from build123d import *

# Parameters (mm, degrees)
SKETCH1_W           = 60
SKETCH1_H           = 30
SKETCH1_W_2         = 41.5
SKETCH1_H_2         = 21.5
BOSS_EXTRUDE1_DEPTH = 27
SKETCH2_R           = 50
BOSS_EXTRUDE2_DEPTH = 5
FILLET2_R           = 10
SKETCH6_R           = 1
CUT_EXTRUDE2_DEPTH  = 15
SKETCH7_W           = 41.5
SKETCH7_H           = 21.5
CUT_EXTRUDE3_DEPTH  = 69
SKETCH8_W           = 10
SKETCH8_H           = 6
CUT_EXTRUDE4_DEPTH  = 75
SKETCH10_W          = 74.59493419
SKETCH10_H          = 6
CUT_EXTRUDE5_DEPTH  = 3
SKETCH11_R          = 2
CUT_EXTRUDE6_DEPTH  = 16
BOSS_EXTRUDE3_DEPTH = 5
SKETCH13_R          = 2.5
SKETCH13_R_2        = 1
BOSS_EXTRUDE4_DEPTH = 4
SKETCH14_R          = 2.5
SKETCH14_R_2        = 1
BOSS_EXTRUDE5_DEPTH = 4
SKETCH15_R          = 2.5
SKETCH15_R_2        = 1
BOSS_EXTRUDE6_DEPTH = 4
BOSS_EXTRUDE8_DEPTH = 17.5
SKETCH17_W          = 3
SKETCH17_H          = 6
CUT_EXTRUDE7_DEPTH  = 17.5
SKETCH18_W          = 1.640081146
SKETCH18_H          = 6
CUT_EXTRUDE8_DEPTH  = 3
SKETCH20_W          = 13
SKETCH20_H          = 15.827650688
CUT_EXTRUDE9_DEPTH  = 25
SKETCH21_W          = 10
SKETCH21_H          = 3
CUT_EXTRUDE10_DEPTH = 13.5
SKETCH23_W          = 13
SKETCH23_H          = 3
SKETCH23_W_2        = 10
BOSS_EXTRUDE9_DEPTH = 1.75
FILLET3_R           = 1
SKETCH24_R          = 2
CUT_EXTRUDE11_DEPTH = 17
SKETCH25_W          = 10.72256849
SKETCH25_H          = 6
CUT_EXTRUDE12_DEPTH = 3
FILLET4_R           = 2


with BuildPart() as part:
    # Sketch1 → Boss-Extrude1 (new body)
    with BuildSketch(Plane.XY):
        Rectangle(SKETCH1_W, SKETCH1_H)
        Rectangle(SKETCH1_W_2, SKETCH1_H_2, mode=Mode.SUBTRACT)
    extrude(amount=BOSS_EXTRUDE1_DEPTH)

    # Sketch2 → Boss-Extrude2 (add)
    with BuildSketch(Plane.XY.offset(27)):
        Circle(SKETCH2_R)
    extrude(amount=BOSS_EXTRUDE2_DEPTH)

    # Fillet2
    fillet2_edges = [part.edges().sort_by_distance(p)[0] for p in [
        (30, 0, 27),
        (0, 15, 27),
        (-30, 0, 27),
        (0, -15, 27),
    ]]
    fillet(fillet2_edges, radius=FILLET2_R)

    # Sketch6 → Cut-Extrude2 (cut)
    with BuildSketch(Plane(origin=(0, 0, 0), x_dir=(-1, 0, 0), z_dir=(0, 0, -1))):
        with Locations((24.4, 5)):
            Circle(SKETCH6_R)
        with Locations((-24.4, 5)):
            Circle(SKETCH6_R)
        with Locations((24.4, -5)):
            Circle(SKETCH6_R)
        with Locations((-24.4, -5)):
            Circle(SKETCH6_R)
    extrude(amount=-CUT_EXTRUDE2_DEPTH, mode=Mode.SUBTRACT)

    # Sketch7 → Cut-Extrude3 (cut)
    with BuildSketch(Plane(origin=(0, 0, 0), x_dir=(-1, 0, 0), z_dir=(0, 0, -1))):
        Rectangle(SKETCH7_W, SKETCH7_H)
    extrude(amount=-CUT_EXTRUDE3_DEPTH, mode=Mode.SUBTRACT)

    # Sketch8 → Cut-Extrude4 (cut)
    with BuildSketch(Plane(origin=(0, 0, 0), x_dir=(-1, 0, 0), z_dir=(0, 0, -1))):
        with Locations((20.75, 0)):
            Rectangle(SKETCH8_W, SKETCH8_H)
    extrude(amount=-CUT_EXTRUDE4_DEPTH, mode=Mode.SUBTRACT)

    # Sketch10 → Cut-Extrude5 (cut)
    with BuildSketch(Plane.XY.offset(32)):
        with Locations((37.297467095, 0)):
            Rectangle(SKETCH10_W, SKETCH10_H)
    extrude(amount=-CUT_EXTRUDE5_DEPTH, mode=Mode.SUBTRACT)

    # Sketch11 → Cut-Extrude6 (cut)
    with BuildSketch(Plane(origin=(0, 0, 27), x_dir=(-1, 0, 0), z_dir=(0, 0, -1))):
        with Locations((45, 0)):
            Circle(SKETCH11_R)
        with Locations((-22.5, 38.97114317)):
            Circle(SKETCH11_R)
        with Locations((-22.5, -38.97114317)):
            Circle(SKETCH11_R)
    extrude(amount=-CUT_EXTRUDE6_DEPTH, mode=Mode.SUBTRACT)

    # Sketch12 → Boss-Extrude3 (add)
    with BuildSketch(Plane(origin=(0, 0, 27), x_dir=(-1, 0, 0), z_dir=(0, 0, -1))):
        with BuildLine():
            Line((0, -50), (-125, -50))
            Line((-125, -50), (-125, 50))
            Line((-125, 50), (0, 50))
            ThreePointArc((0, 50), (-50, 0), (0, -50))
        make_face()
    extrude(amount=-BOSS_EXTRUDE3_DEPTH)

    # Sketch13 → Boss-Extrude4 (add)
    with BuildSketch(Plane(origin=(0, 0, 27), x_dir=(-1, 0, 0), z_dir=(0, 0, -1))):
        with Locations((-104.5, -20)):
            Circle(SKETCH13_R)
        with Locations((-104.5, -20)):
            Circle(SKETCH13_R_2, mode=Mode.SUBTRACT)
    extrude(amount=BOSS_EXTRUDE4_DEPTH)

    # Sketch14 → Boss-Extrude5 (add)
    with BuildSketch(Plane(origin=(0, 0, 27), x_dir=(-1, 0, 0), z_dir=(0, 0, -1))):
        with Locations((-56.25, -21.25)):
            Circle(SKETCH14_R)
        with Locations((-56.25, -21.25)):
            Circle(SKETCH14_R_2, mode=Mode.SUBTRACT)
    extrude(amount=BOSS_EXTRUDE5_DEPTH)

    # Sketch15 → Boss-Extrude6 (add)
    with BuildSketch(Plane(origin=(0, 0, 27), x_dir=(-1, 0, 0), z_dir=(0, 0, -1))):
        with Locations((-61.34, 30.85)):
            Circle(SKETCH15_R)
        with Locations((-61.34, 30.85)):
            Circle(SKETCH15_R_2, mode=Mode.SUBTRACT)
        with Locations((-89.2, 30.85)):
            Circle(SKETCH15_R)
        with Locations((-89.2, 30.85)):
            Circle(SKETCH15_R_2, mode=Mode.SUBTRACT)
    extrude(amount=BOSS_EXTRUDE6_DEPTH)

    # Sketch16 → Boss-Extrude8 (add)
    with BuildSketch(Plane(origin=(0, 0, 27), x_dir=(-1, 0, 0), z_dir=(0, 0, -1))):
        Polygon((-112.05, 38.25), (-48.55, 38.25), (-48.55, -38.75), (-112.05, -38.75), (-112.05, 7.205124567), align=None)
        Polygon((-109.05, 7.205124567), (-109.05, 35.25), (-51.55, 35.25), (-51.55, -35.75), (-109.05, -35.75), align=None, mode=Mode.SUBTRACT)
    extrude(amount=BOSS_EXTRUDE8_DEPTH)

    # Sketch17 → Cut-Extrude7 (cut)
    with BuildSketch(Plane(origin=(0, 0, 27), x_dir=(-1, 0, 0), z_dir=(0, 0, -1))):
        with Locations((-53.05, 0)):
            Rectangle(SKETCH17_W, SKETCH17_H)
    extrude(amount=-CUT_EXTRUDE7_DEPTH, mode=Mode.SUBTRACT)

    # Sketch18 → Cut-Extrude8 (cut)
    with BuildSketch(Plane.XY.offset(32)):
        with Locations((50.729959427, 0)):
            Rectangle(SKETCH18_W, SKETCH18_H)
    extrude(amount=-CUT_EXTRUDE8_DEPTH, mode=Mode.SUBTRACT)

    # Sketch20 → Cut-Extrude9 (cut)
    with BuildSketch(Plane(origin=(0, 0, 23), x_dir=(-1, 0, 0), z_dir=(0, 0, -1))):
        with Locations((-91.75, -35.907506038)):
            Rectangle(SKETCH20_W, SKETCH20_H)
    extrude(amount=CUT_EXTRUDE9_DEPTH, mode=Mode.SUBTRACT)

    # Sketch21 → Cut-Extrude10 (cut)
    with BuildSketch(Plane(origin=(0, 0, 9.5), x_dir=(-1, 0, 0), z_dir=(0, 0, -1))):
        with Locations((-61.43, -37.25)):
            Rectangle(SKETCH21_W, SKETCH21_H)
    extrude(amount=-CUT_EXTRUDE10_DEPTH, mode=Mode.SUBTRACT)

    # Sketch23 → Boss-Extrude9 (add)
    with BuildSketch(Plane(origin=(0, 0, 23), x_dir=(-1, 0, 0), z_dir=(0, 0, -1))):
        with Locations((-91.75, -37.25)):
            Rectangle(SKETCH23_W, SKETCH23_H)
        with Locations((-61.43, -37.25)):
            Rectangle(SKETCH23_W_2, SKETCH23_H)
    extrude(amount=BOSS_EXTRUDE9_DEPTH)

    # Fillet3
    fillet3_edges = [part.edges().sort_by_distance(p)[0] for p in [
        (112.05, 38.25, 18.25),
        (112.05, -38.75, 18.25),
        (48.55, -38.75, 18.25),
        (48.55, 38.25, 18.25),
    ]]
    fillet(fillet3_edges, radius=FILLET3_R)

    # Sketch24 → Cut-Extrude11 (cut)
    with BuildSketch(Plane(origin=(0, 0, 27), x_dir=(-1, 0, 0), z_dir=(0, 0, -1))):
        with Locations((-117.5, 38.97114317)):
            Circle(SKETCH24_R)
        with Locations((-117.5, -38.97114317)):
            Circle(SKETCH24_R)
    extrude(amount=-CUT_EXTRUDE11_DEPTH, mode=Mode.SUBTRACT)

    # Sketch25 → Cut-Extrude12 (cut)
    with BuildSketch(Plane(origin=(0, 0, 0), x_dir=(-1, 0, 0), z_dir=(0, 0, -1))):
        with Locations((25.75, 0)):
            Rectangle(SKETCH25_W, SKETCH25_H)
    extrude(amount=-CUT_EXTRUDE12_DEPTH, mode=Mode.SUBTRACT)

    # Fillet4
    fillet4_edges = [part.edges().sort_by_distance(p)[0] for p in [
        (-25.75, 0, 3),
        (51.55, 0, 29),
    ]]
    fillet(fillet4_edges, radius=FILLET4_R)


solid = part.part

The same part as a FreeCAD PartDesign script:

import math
import FreeCAD as App
import Part
import Sketcher

V = App.Vector


def edges_at(feature, points):
    """Names of the edges that pass closest to the given points."""
    edges = feature.Shape.Edges
    near = lambda p: min(range(len(edges)), key=lambda i: edges[i].distToShape(Part.Vertex(*p))[0])
    return sorted({f"Edge{near(p) + 1}" for p in points})

doc = App.newDocument("Part")
params = doc.addObject("Spreadsheet::Sheet", "Params")
for row, (alias, value) in enumerate([
    ("sketch1_width", "60 mm"),
    ("sketch1_height", "30 mm"),
    ("sketch1_width2", "41.5 mm"),
    ("sketch1_height2", "21.5 mm"),
    ("pad1_length", "27 mm"),
    ("sketch2_diameter", "100 mm"),
    ("pad2_length", "5 mm"),
    ("fillet_radius", "10 mm"),
    ("sketch3_diameter", "2 mm"),
    ("pocket1_length", "15 mm"),
    ("sketch4_width", "41.5 mm"),
    ("sketch4_height", "21.5 mm"),
    ("pocket2_length", "69 mm"),
    ("sketch5_width", "10 mm"),
    ("sketch5_height", "6 mm"),
    ("pocket3_length", "75 mm"),
    ("sketch6_height", "6 mm"),
    ("pocket4_length", "3 mm"),
    ("sketch7_diameter", "4 mm"),
    ("pocket5_length", "16 mm"),
    ("sketch8_radius", "50 mm"),
    ("sketch8_width", "125 mm"),
    ("pad3_length", "5 mm"),
    ("sketch9_diameter", "5 mm"),
    ("sketch9_diameter2", "2 mm"),
    ("pad4_length", "4 mm"),
    ("sketch10_diameter", "5 mm"),
    ("sketch10_diameter2", "2 mm"),
    ("pad5_length", "4 mm"),
    ("sketch11_diameter", "5 mm"),
    ("sketch11_diameter2", "2 mm"),
    ("pad6_length", "4 mm"),
    ("sketch12_height", "77 mm"),
    ("sketch12_height2", "71 mm"),
    ("sketch12_width", "63.5 mm"),
    ("sketch12_width2", "57.5 mm"),
    ("pad7_length", "17.5 mm"),
    ("sketch13_width", "3 mm"),
    ("sketch13_height", "6 mm"),
    ("pocket6_length", "17.5 mm"),
    ("sketch14_height", "6 mm"),
    ("pocket7_length", "3 mm"),
    ("sketch15_width", "13 mm"),
    ("pocket8_length", "25 mm"),
    ("sketch16_width", "10 mm"),
    ("sketch16_height", "3 mm"),
    ("pocket9_length", "13.5 mm"),
    ("sketch17_width", "13 mm"),
    ("sketch17_width2", "10 mm"),
    ("sketch17_height", "3 mm"),
    ("pad8_length", "1.75 mm"),
    ("fillet2_radius", "1 mm"),
    ("sketch18_diameter", "4 mm"),
    ("pocket10_length", "17 mm"),
    ("sketch19_height", "6 mm"),
    ("pocket11_length", "3 mm"),
    ("fillet3_radius", "2 mm"),
], start=1):
    params.set(f"A{row}", alias)
    params.set(f"B{row}", "=" + value)
    params.setAlias(f"B{row}", alias)

body = doc.addObject("PartDesign::Body", "Body")

sketch1 = body.newObject("Sketcher::SketchObject", "Sketch")
sketch1.AttachmentSupport = (doc.getObject("XY_Plane"), [""])
sketch1.MapMode = "FlatFace"
sketch1.addGeometry(Part.LineSegment(V(-30, 15, 0), V(-30, -15, 0)), False)
sketch1.addGeometry(Part.LineSegment(V(-30, -15, 0), V(30, -15, 0)), False)
sketch1.addGeometry(Part.LineSegment(V(30, -15, 0), V(30, 15, 0)), False)
sketch1.addGeometry(Part.LineSegment(V(30, 15, 0), V(-30, 15, 0)), False)
sketch1.addGeometry(Part.LineSegment(V(21, -11, 0), V(-21, -11, 0)), False)
sketch1.addGeometry(Part.LineSegment(V(-21, -11, 0), V(-21, 11, 0)), False)
sketch1.addGeometry(Part.LineSegment(V(-21, 11, 0), V(21, 11, 0)), False)
sketch1.addGeometry(Part.LineSegment(V(21, 11, 0), V(21, -11, 0)), False)
sketch1.addConstraint(Sketcher.Constraint("Coincident", 0, 2, 1, 1))
sketch1.addConstraint(Sketcher.Constraint("Coincident", 1, 2, 2, 1))
sketch1.addConstraint(Sketcher.Constraint("Coincident", 2, 2, 3, 1))
sketch1.addConstraint(Sketcher.Constraint("Coincident", 3, 2, 0, 1))
sketch1.addConstraint(Sketcher.Constraint("Coincident", 4, 2, 5, 1))
sketch1.addConstraint(Sketcher.Constraint("Coincident", 5, 2, 6, 1))
sketch1.addConstraint(Sketcher.Constraint("Coincident", 6, 2, 7, 1))
sketch1.addConstraint(Sketcher.Constraint("Coincident", 7, 2, 4, 1))
sketch1.addConstraint(Sketcher.Constraint("Vertical", 0))
sketch1.addConstraint(Sketcher.Constraint("Horizontal", 1))
sketch1.addConstraint(Sketcher.Constraint("Vertical", 2))
sketch1.addConstraint(Sketcher.Constraint("Horizontal", 3))
sketch1.addConstraint(Sketcher.Constraint("Horizontal", 4))
sketch1.addConstraint(Sketcher.Constraint("Vertical", 5))
sketch1.addConstraint(Sketcher.Constraint("Horizontal", 6))
sketch1.addConstraint(Sketcher.Constraint("Vertical", 7))
sketch1.addConstraint(Sketcher.Constraint("Symmetric", 0, 2, 2, 2, -1, 1))
sketch1.addConstraint(Sketcher.Constraint("Symmetric", 4, 2, 6, 2, -1, 1))
sketch1.addConstraint(Sketcher.Constraint("DistanceX", 1, 1, 1, 2, 60.0))
sketch1.addConstraint(Sketcher.Constraint("DistanceY", 0, 2, 0, 1, 30.0))
sketch1.addConstraint(Sketcher.Constraint("DistanceX", 4, 2, 4, 1, 41.5))
sketch1.addConstraint(Sketcher.Constraint("DistanceY", 5, 1, 5, 2, 21.5))
sketch1.setExpression("Constraints[18]", "Params.sketch1_width")
sketch1.setExpression("Constraints[19]", "Params.sketch1_height")
sketch1.setExpression("Constraints[20]", "Params.sketch1_width2")
sketch1.setExpression("Constraints[21]", "Params.sketch1_height2")
pad1 = body.newObject("PartDesign::Pad", "Pad")
pad1.Profile = sketch1
pad1.setExpression("Length", "Params.pad1_length")

sketch2 = body.newObject("Sketcher::SketchObject", "Sketch001")
sketch2.AttachmentSupport = (doc.getObject("XY_Plane"), [""])
sketch2.MapMode = "FlatFace"
sketch2.AttachmentOffset = App.Placement(V(0, 0, 27), App.Rotation())
sketch2.addGeometry(Part.Circle(V(0, 0, 0), V(0, 0, 1), 50), False)
sketch2.addConstraint(Sketcher.Constraint("Coincident", 0, 3, -1, 1))
sketch2.addConstraint(Sketcher.Constraint("Diameter", 0, 100.0))
sketch2.setExpression("Constraints[1]", "Params.sketch2_diameter")
pad2 = body.newObject("PartDesign::Pad", "Pad001")
pad2.Profile = sketch2
pad2.setExpression("Length", "Params.pad2_length")
doc.recompute()

fillet = body.newObject("PartDesign::Fillet", "Fillet")
fillet.Base = (pad2, edges_at(pad2, [
    (30, 0, 27),
    (0, 15, 27),
    (-30, 0, 27),
    (0, -15, 27),
]))
fillet.setExpression("Radius", "Params.fillet_radius")

sketch3 = body.newObject("Sketcher::SketchObject", "Sketch002")
sketch3.AttachmentSupport = (doc.getObject("XY_Plane"), [""])
sketch3.MapMode = "FlatFace"
sketch3.addGeometry(Part.Circle(V(-24.4, 5, 0), V(0, 0, 1), 1), False)
sketch3.addGeometry(Part.Circle(V(24.4, 5, 0), V(0, 0, 1), 1), False)
sketch3.addGeometry(Part.Circle(V(-24.4, -5, 0), V(0, 0, 1), 1), False)
sketch3.addGeometry(Part.Circle(V(24.4, -5, 0), V(0, 0, 1), 1), False)
sketch3.addConstraint(Sketcher.Constraint("Equal", 0, 1))
sketch3.addConstraint(Sketcher.Constraint("Equal", 1, 2))
sketch3.addConstraint(Sketcher.Constraint("Equal", 2, 3))
sketch3.addConstraint(Sketcher.Constraint("Symmetric", 1, 3, 2, 3, -1, 1))
sketch3.addConstraint(Sketcher.Constraint("Symmetric", 0, 3, 3, 3, -1, 1))
sketch3.addConstraint(Sketcher.Constraint("Symmetric", 0, 3, 1, 3, -2))
sketch3.addConstraint(Sketcher.Constraint("Diameter", 0, 2.0))
sketch3.addConstraint(Sketcher.Constraint("DistanceY", -1, 1, 0, 3, 5.0))
sketch3.addConstraint(Sketcher.Constraint("DistanceX", 0, 3, -1, 1, 24.4))
sketch3.setExpression("Constraints[6]", "Params.sketch3_diameter")
pocket1 = body.newObject("PartDesign::Pocket", "Pocket")
pocket1.Profile = sketch3
pocket1.setExpression("Length", "Params.pocket1_length")
pocket1.Reversed = True

sketch4 = body.newObject("Sketcher::SketchObject", "Sketch003")
sketch4.AttachmentSupport = (doc.getObject("XY_Plane"), [""])
sketch4.MapMode = "FlatFace"
sketch4.addGeometry(Part.LineSegment(V(21, 11, 0), V(21, -11, 0)), False)
sketch4.addGeometry(Part.LineSegment(V(21, -11, 0), V(-21, -11, 0)), False)
sketch4.addGeometry(Part.LineSegment(V(-21, -11, 0), V(-21, 11, 0)), False)
sketch4.addGeometry(Part.LineSegment(V(-21, 11, 0), V(21, 11, 0)), False)
sketch4.addConstraint(Sketcher.Constraint("Coincident", 0, 2, 1, 1))
sketch4.addConstraint(Sketcher.Constraint("Coincident", 1, 2, 2, 1))
sketch4.addConstraint(Sketcher.Constraint("Coincident", 2, 2, 3, 1))
sketch4.addConstraint(Sketcher.Constraint("Coincident", 3, 2, 0, 1))
sketch4.addConstraint(Sketcher.Constraint("Vertical", 0))
sketch4.addConstraint(Sketcher.Constraint("Horizontal", 1))
sketch4.addConstraint(Sketcher.Constraint("Vertical", 2))
sketch4.addConstraint(Sketcher.Constraint("Horizontal", 3))
sketch4.addConstraint(Sketcher.Constraint("Symmetric", 0, 2, 2, 2, -1, 1))
sketch4.addConstraint(Sketcher.Constraint("DistanceX", 1, 2, 1, 1, 41.5))
sketch4.addConstraint(Sketcher.Constraint("DistanceY", 0, 2, 0, 1, 21.5))
sketch4.setExpression("Constraints[9]", "Params.sketch4_width")
sketch4.setExpression("Constraints[10]", "Params.sketch4_height")
pocket2 = body.newObject("PartDesign::Pocket", "Pocket001")
pocket2.Profile = sketch4
pocket2.setExpression("Length", "Params.pocket2_length")
pocket2.Reversed = True

sketch5 = body.newObject("Sketcher::SketchObject", "Sketch004")
sketch5.AttachmentSupport = (doc.getObject("XY_Plane"), [""])
sketch5.MapMode = "FlatFace"
sketch5.addGeometry(Part.LineSegment(V(-16, 3, 0), V(-16, -3, 0)), False)
sketch5.addGeometry(Part.LineSegment(V(-16, -3, 0), V(-26, -3, 0)), False)
sketch5.addGeometry(Part.LineSegment(V(-26, -3, 0), V(-26, 3, 0)), False)
sketch5.addGeometry(Part.LineSegment(V(-26, 3, 0), V(-16, 3, 0)), False)
sketch5.addConstraint(Sketcher.Constraint("Coincident", 0, 2, 1, 1))
sketch5.addConstraint(Sketcher.Constraint("Coincident", 1, 2, 2, 1))
sketch5.addConstraint(Sketcher.Constraint("Coincident", 2, 2, 3, 1))
sketch5.addConstraint(Sketcher.Constraint("Coincident", 3, 2, 0, 1))
sketch5.addConstraint(Sketcher.Constraint("Vertical", 0))
sketch5.addConstraint(Sketcher.Constraint("Horizontal", 1))
sketch5.addConstraint(Sketcher.Constraint("Vertical", 2))
sketch5.addConstraint(Sketcher.Constraint("Horizontal", 3))
sketch5.addConstraint(Sketcher.Constraint("DistanceX", 1, 2, 1, 1, 10.0))
sketch5.addConstraint(Sketcher.Constraint("DistanceY", 0, 2, 0, 1, 6.0))
sketch5.addConstraint(Sketcher.Constraint("DistanceY", 0, 2, -1, 1, 3.0))
sketch5.addConstraint(Sketcher.Constraint("DistanceX", 0, 2, -1, 1, 15.75))
sketch5.setExpression("Constraints[8]", "Params.sketch5_width")
sketch5.setExpression("Constraints[9]", "Params.sketch5_height")
pocket3 = body.newObject("PartDesign::Pocket", "Pocket002")
pocket3.Profile = sketch5
pocket3.setExpression("Length", "Params.pocket3_length")
pocket3.Reversed = True

sketch6 = body.newObject("Sketcher::SketchObject", "Sketch005")
sketch6.AttachmentSupport = (doc.getObject("XY_Plane"), [""])
sketch6.MapMode = "FlatFace"
sketch6.AttachmentOffset = App.Placement(V(0, 0, 32), App.Rotation())
sketch6.addGeometry(Part.LineSegment(V(0, 3, 0), V(0, -3, 0)), False)
sketch6.addGeometry(Part.LineSegment(V(0, -3, 0), V(75, -3, 0)), False)
sketch6.addGeometry(Part.LineSegment(V(75, -3, 0), V(75, 3, 0)), False)
sketch6.addGeometry(Part.LineSegment(V(75, 3, 0), V(0, 3, 0)), False)
sketch6.addConstraint(Sketcher.Constraint("Coincident", 0, 2, 1, 1))
sketch6.addConstraint(Sketcher.Constraint("Coincident", 1, 2, 2, 1))
sketch6.addConstraint(Sketcher.Constraint("Coincident", 2, 2, 3, 1))
sketch6.addConstraint(Sketcher.Constraint("Coincident", 3, 2, 0, 1))
sketch6.addConstraint(Sketcher.Constraint("Vertical", 0))
sketch6.addConstraint(Sketcher.Constraint("Horizontal", 1))
sketch6.addConstraint(Sketcher.Constraint("Vertical", 2))
sketch6.addConstraint(Sketcher.Constraint("Horizontal", 3))
sketch6.addConstraint(Sketcher.Constraint("Symmetric", 0, 2, 3, 2, -1, 1))
sketch6.addConstraint(Sketcher.Constraint("DistanceY", 0, 2, 0, 1, 6.0))
sketch6.addConstraint(Sketcher.Constraint("DistanceX", 1, 1, 1, 2, 74.594934))
sketch6.setExpression("Constraints[9]", "Params.sketch6_height")
pocket4 = body.newObject("PartDesign::Pocket", "Pocket003")
pocket4.Profile = sketch6
pocket4.setExpression("Length", "Params.pocket4_length")

sketch7 = body.newObject("Sketcher::SketchObject", "Sketch006")
sketch7.AttachmentSupport = (doc.getObject("XY_Plane"), [""])
sketch7.MapMode = "FlatFace"
sketch7.AttachmentOffset = App.Placement(V(0, 0, 27), App.Rotation())
sketch7.addGeometry(Part.Circle(V(-45, 0, 0), V(0, 0, 1), 2), False)
sketch7.addGeometry(Part.Circle(V(22.5, 39, 0), V(0, 0, 1), 2), False)
sketch7.addGeometry(Part.Circle(V(22.5, -39, 0), V(0, 0, 1), 2), False)
sketch7.addConstraint(Sketcher.Constraint("Equal", 0, 1))
sketch7.addConstraint(Sketcher.Constraint("Equal", 1, 2))
sketch7.addConstraint(Sketcher.Constraint("Symmetric", 1, 3, 2, 3, -1))
sketch7.addConstraint(Sketcher.Constraint("PointOnObject", 0, 3, -1))
sketch7.addConstraint(Sketcher.Constraint("Diameter", 0, 4.0))
sketch7.addConstraint(Sketcher.Constraint("DistanceX", 0, 3, -1, 1, 45.0))
sketch7.addConstraint(Sketcher.Constraint("DistanceX", -1, 1, 1, 3, 22.5))
sketch7.addConstraint(Sketcher.Constraint("DistanceY", -1, 1, 1, 3, 38.971143))
sketch7.setExpression("Constraints[4]", "Params.sketch7_diameter")
pocket5 = body.newObject("PartDesign::Pocket", "Pocket004")
pocket5.Profile = sketch7
pocket5.setExpression("Length", "Params.pocket5_length")
pocket5.Reversed = True

sketch8 = body.newObject("Sketcher::SketchObject", "Sketch007")
sketch8.AttachmentSupport = (doc.getObject("XY_Plane"), [""])
sketch8.MapMode = "FlatFace"
sketch8.AttachmentOffset = App.Placement(V(0, 0, 27), App.Rotation())
sketch8.addGeometry(Part.LineSegment(V(125, -50, 0), V(0, -50, 0)), False)
sketch8.addGeometry(Part.ArcOfCircle(Part.Circle(V(0, 0, 0), V(0, 0, 1), 50), math.radians(-90), math.radians(90)), False)
sketch8.addGeometry(Part.LineSegment(V(0, 50, 0), V(125, 50, 0)), False)
sketch8.addGeometry(Part.LineSegment(V(125, 50, 0), V(125, -50, 0)), False)
sketch8.addConstraint(Sketcher.Constraint("Tangent", 0, 2, 1, 1))
sketch8.addConstraint(Sketcher.Constraint("Tangent", 1, 2, 2, 1))
sketch8.addConstraint(Sketcher.Constraint("Coincident", 2, 2, 3, 1))
sketch8.addConstraint(Sketcher.Constraint("Coincident", 3, 2, 0, 1))
sketch8.addConstraint(Sketcher.Constraint("Horizontal", 0))
sketch8.addConstraint(Sketcher.Constraint("Horizontal", 2))
sketch8.addConstraint(Sketcher.Constraint("Vertical", 3))
sketch8.addConstraint(Sketcher.Constraint("Coincident", 1, 3, -1, 1))
sketch8.addConstraint(Sketcher.Constraint("Radius", 1, 50.0))
sketch8.addConstraint(Sketcher.Constraint("DistanceX", 0, 2, 0, 1, 125.0))
sketch8.setExpression("Constraints[8]", "Params.sketch8_radius")
sketch8.setExpression("Constraints[9]", "Params.sketch8_width")
pad3 = body.newObject("PartDesign::Pad", "Pad002")
pad3.Profile = sketch8
pad3.setExpression("Length", "Params.pad3_length")

sketch9 = body.newObject("Sketcher::SketchObject", "Sketch008")
sketch9.AttachmentSupport = (doc.getObject("XY_Plane"), [""])
sketch9.MapMode = "FlatFace"
sketch9.AttachmentOffset = App.Placement(V(0, 0, 27), App.Rotation())
sketch9.addGeometry(Part.Circle(V(104.5, -20, 0), V(0, 0, 1), 2.5), False)
sketch9.addGeometry(Part.Circle(V(104.5, -20, 0), V(0, 0, 1), 1), False)
sketch9.addConstraint(Sketcher.Constraint("Coincident", 1, 3, 0, 3))
sketch9.addConstraint(Sketcher.Constraint("Diameter", 0, 5.0))
sketch9.addConstraint(Sketcher.Constraint("Diameter", 1, 2.0))
sketch9.addConstraint(Sketcher.Constraint("DistanceY", 0, 3, -1, 1, 20.0))
sketch9.addConstraint(Sketcher.Constraint("DistanceX", -1, 1, 0, 3, 104.5))
sketch9.setExpression("Constraints[1]", "Params.sketch9_diameter")
sketch9.setExpression("Constraints[2]", "Params.sketch9_diameter2")
pad4 = body.newObject("PartDesign::Pad", "Pad003")
pad4.Profile = sketch9
pad4.setExpression("Length", "Params.pad4_length")
pad4.Reversed = True

sketch10 = body.newObject("Sketcher::SketchObject", "Sketch009")
sketch10.AttachmentSupport = (doc.getObject("XY_Plane"), [""])
sketch10.MapMode = "FlatFace"
sketch10.AttachmentOffset = App.Placement(V(0, 0, 27), App.Rotation())
sketch10.addGeometry(Part.Circle(V(56.2, -21.2, 0), V(0, 0, 1), 2.5), False)
sketch10.addGeometry(Part.Circle(V(56.2, -21.2, 0), V(0, 0, 1), 1), False)
sketch10.addConstraint(Sketcher.Constraint("Coincident", 1, 3, 0, 3))
sketch10.addConstraint(Sketcher.Constraint("Diameter", 0, 5.0))
sketch10.addConstraint(Sketcher.Constraint("Diameter", 1, 2.0))
sketch10.addConstraint(Sketcher.Constraint("DistanceX", -1, 1, 0, 3, 56.25))
sketch10.addConstraint(Sketcher.Constraint("DistanceY", 0, 3, -1, 1, 21.25))
sketch10.setExpression("Constraints[1]", "Params.sketch10_diameter")
sketch10.setExpression("Constraints[2]", "Params.sketch10_diameter2")
pad5 = body.newObject("PartDesign::Pad", "Pad004")
pad5.Profile = sketch10
pad5.setExpression("Length", "Params.pad5_length")
pad5.Reversed = True

sketch11 = body.newObject("Sketcher::SketchObject", "Sketch010")
sketch11.AttachmentSupport = (doc.getObject("XY_Plane"), [""])
sketch11.MapMode = "FlatFace"
sketch11.AttachmentOffset = App.Placement(V(0, 0, 27), App.Rotation())
sketch11.addGeometry(Part.Circle(V(61.3, 30.9, 0), V(0, 0, 1), 2.5), False)
sketch11.addGeometry(Part.Circle(V(61.3, 30.9, 0), V(0, 0, 1), 1), False)
sketch11.addGeometry(Part.Circle(V(89.2, 30.9, 0), V(0, 0, 1), 2.5), False)
sketch11.addGeometry(Part.Circle(V(89.2, 30.9, 0), V(0, 0, 1), 1), False)
sketch11.addConstraint(Sketcher.Constraint("Coincident", 1, 3, 0, 3))
sketch11.addConstraint(Sketcher.Constraint("Coincident", 3, 3, 2, 3))
sketch11.addConstraint(Sketcher.Constraint("Equal", 0, 2))
sketch11.addConstraint(Sketcher.Constraint("Equal", 1, 3))
sketch11.addConstraint(Sketcher.Constraint("Horizontal", 1, 3, 2, 3))
sketch11.addConstraint(Sketcher.Constraint("Diameter", 0, 5.0))
sketch11.addConstraint(Sketcher.Constraint("Diameter", 1, 2.0))
sketch11.addConstraint(Sketcher.Constraint("DistanceX", -1, 1, 2, 3, 89.2))
sketch11.addConstraint(Sketcher.Constraint("DistanceX", -1, 1, 0, 3, 61.34))
sketch11.addConstraint(Sketcher.Constraint("DistanceY", -1, 1, 0, 3, 30.85))
sketch11.setExpression("Constraints[5]", "Params.sketch11_diameter")
sketch11.setExpression("Constraints[6]", "Params.sketch11_diameter2")
pad6 = body.newObject("PartDesign::Pad", "Pad005")
pad6.Profile = sketch11
pad6.setExpression("Length", "Params.pad6_length")
pad6.Reversed = True

sketch12 = body.newObject("Sketcher::SketchObject", "Sketch011")
sketch12.AttachmentSupport = (doc.getObject("XY_Plane"), [""])
sketch12.MapMode = "FlatFace"
sketch12.AttachmentOffset = App.Placement(V(0, 0, 27), App.Rotation())
sketch12.addGeometry(Part.LineSegment(V(49, 38, 0), V(112, 38, 0)), False)
sketch12.addGeometry(Part.LineSegment(V(112, 38, 0), V(112, -39, 0)), False)
sketch12.addGeometry(Part.LineSegment(V(112, -39, 0), V(49, -39, 0)), False)
sketch12.addGeometry(Part.LineSegment(V(49, -39, 0), V(49, 38, 0)), False)
sketch12.addGeometry(Part.LineSegment(V(109, 35, 0), V(52, 35, 0)), False)
sketch12.addGeometry(Part.LineSegment(V(52, 35, 0), V(52, -36, 0)), False)
sketch12.addGeometry(Part.LineSegment(V(52, -36, 0), V(109, -36, 0)), False)
sketch12.addGeometry(Part.LineSegment(V(109, -36, 0), V(109, 35, 0)), False)
sketch12.addConstraint(Sketcher.Constraint("Coincident", 0, 2, 1, 1))
sketch12.addConstraint(Sketcher.Constraint("Coincident", 1, 2, 2, 1))
sketch12.addConstraint(Sketcher.Constraint("Coincident", 2, 2, 3, 1))
sketch12.addConstraint(Sketcher.Constraint("Coincident", 3, 2, 0, 1))
sketch12.addConstraint(Sketcher.Constraint("Coincident", 4, 2, 5, 1))
sketch12.addConstraint(Sketcher.Constraint("Coincident", 5, 2, 6, 1))
sketch12.addConstraint(Sketcher.Constraint("Coincident", 6, 2, 7, 1))
sketch12.addConstraint(Sketcher.Constraint("Coincident", 7, 2, 4, 1))
sketch12.addConstraint(Sketcher.Constraint("Horizontal", 0))
sketch12.addConstraint(Sketcher.Constraint("Vertical", 1))
sketch12.addConstraint(Sketcher.Constraint("Horizontal", 2))
sketch12.addConstraint(Sketcher.Constraint("Vertical", 3))
sketch12.addConstraint(Sketcher.Constraint("Horizontal", 4))
sketch12.addConstraint(Sketcher.Constraint("Vertical", 5))
sketch12.addConstraint(Sketcher.Constraint("Horizontal", 6))
sketch12.addConstraint(Sketcher.Constraint("Vertical", 7))
sketch12.addConstraint(Sketcher.Constraint("DistanceY", 1, 2, 1, 1, 77.0))
sketch12.addConstraint(Sketcher.Constraint("DistanceY", 5, 2, 5, 1, 71.0))
sketch12.addConstraint(Sketcher.Constraint("DistanceX", 0, 1, 0, 2, 63.5))
sketch12.addConstraint(Sketcher.Constraint("DistanceX", 4, 2, 4, 1, 57.5))
sketch12.addConstraint(Sketcher.Constraint("DistanceX", 3, 2, 4, 2, 3.0))
sketch12.addConstraint(Sketcher.Constraint("DistanceY", 4, 2, 3, 2, 3.0))
sketch12.addConstraint(Sketcher.Constraint("DistanceX", -1, 1, 0, 2, 112.05))
sketch12.addConstraint(Sketcher.Constraint("DistanceY", -1, 1, 0, 2, 38.25))
sketch12.setExpression("Constraints[16]", "Params.sketch12_height")
sketch12.setExpression("Constraints[17]", "Params.sketch12_height2")
sketch12.setExpression("Constraints[18]", "Params.sketch12_width")
sketch12.setExpression("Constraints[19]", "Params.sketch12_width2")
pad7 = body.newObject("PartDesign::Pad", "Pad006")
pad7.Profile = sketch12
pad7.setExpression("Length", "Params.pad7_length")
pad7.Reversed = True

sketch13 = body.newObject("Sketcher::SketchObject", "Sketch012")
sketch13.AttachmentSupport = (doc.getObject("XY_Plane"), [""])
sketch13.MapMode = "FlatFace"
sketch13.AttachmentOffset = App.Placement(V(0, 0, 27), App.Rotation())
sketch13.addGeometry(Part.LineSegment(V(54.5, 3, 0), V(54.5, -3, 0)), False)
sketch13.addGeometry(Part.LineSegment(V(54.5, -3, 0), V(51.5, -3, 0)), False)
sketch13.addGeometry(Part.LineSegment(V(51.5, -3, 0), V(51.5, 3, 0)), False)
sketch13.addGeometry(Part.LineSegment(V(51.5, 3, 0), V(54.5, 3, 0)), False)
sketch13.addConstraint(Sketcher.Constraint("Coincident", 0, 2, 1, 1))
sketch13.addConstraint(Sketcher.Constraint("Coincident", 1, 2, 2, 1))
sketch13.addConstraint(Sketcher.Constraint("Coincident", 2, 2, 3, 1))
sketch13.addConstraint(Sketcher.Constraint("Coincident", 3, 2, 0, 1))
sketch13.addConstraint(Sketcher.Constraint("Vertical", 0))
sketch13.addConstraint(Sketcher.Constraint("Horizontal", 1))
sketch13.addConstraint(Sketcher.Constraint("Vertical", 2))
sketch13.addConstraint(Sketcher.Constraint("Horizontal", 3))
sketch13.addConstraint(Sketcher.Constraint("DistanceX", 1, 2, 1, 1, 3.0))
sketch13.addConstraint(Sketcher.Constraint("DistanceY", 0, 2, 0, 1, 6.0))
sketch13.addConstraint(Sketcher.Constraint("DistanceY", 0, 2, -1, 1, 3.0))
sketch13.addConstraint(Sketcher.Constraint("DistanceX", -1, 1, 0, 2, 54.55))
sketch13.setExpression("Constraints[8]", "Params.sketch13_width")
sketch13.setExpression("Constraints[9]", "Params.sketch13_height")
pocket6 = body.newObject("PartDesign::Pocket", "Pocket005")
pocket6.Profile = sketch13
pocket6.setExpression("Length", "Params.pocket6_length")
pocket6.Reversed = True

sketch14 = body.newObject("Sketcher::SketchObject", "Sketch013")
sketch14.AttachmentSupport = (doc.getObject("XY_Plane"), [""])
sketch14.MapMode = "FlatFace"
sketch14.AttachmentOffset = App.Placement(V(0, 0, 32), App.Rotation())
sketch14.addGeometry(Part.LineSegment(V(49.9, 3, 0), V(49.9, -3, 0)), False)
sketch14.addGeometry(Part.LineSegment(V(49.9, -3, 0), V(51.5, -3, 0)), False)
sketch14.addGeometry(Part.LineSegment(V(51.5, -3, 0), V(51.5, 3, 0)), False)
sketch14.addGeometry(Part.LineSegment(V(51.5, 3, 0), V(49.9, 3, 0)), False)
sketch14.addConstraint(Sketcher.Constraint("Coincident", 0, 2, 1, 1))
sketch14.addConstraint(Sketcher.Constraint("Coincident", 1, 2, 2, 1))
sketch14.addConstraint(Sketcher.Constraint("Coincident", 2, 2, 3, 1))
sketch14.addConstraint(Sketcher.Constraint("Coincident", 3, 2, 0, 1))
sketch14.addConstraint(Sketcher.Constraint("Vertical", 0))
sketch14.addConstraint(Sketcher.Constraint("Horizontal", 1))
sketch14.addConstraint(Sketcher.Constraint("Vertical", 2))
sketch14.addConstraint(Sketcher.Constraint("Horizontal", 3))
sketch14.addConstraint(Sketcher.Constraint("DistanceY", 0, 2, 0, 1, 6.0))
sketch14.addConstraint(Sketcher.Constraint("DistanceY", 0, 2, -1, 1, 3.0))
sketch14.addConstraint(Sketcher.Constraint("DistanceX", -1, 1, 1, 2, 51.55))
sketch14.addConstraint(Sketcher.Constraint("DistanceX", 1, 1, 1, 2, 1.640081))
sketch14.setExpression("Constraints[8]", "Params.sketch14_height")
pocket7 = body.newObject("PartDesign::Pocket", "Pocket006")
pocket7.Profile = sketch14
pocket7.setExpression("Length", "Params.pocket7_length")

sketch15 = body.newObject("Sketcher::SketchObject", "Sketch014")
sketch15.AttachmentSupport = (doc.getObject("XY_Plane"), [""])
sketch15.MapMode = "FlatFace"
sketch15.AttachmentOffset = App.Placement(V(0, 0, 23), App.Rotation())
sketch15.addGeometry(Part.LineSegment(V(98, -28, 0), V(98, -44, 0)), False)
sketch15.addGeometry(Part.LineSegment(V(98, -44, 0), V(85, -44, 0)), False)
sketch15.addGeometry(Part.LineSegment(V(85, -44, 0), V(85, -28, 0)), False)
sketch15.addGeometry(Part.LineSegment(V(85, -28, 0), V(98, -28, 0)), False)
sketch15.addConstraint(Sketcher.Constraint("Coincident", 0, 2, 1, 1))
sketch15.addConstraint(Sketcher.Constraint("Coincident", 1, 2, 2, 1))
sketch15.addConstraint(Sketcher.Constraint("Coincident", 2, 2, 3, 1))
sketch15.addConstraint(Sketcher.Constraint("Coincident", 3, 2, 0, 1))
sketch15.addConstraint(Sketcher.Constraint("Vertical", 0))
sketch15.addConstraint(Sketcher.Constraint("Horizontal", 1))
sketch15.addConstraint(Sketcher.Constraint("Vertical", 2))
sketch15.addConstraint(Sketcher.Constraint("Horizontal", 3))
sketch15.addConstraint(Sketcher.Constraint("DistanceX", 1, 2, 1, 1, 13.0))
sketch15.addConstraint(Sketcher.Constraint("DistanceX", -1, 1, 0, 2, 98.25))
sketch15.addConstraint(Sketcher.Constraint("DistanceY", 0, 2, 0, 1, 15.827651))
sketch15.addConstraint(Sketcher.Constraint("DistanceY", 0, 2, -1, 1, 43.821331))
sketch15.setExpression("Constraints[8]", "Params.sketch15_width")
pocket8 = body.newObject("PartDesign::Pocket", "Pocket007")
pocket8.Profile = sketch15
pocket8.setExpression("Length", "Params.pocket8_length")

sketch16 = body.newObject("Sketcher::SketchObject", "Sketch015")
sketch16.AttachmentSupport = (doc.getObject("XY_Plane"), [""])
sketch16.MapMode = "FlatFace"
sketch16.AttachmentOffset = App.Placement(V(0, 0, 9.5), App.Rotation())
sketch16.addGeometry(Part.LineSegment(V(66.4, -35.8, 0), V(66.4, -38.8, 0)), False)
sketch16.addGeometry(Part.LineSegment(V(66.4, -38.8, 0), V(56.4, -38.8, 0)), False)
sketch16.addGeometry(Part.LineSegment(V(56.4, -38.8, 0), V(56.4, -35.8, 0)), False)
sketch16.addGeometry(Part.LineSegment(V(56.4, -35.8, 0), V(66.4, -35.8, 0)), False)
sketch16.addConstraint(Sketcher.Constraint("Coincident", 0, 2, 1, 1))
sketch16.addConstraint(Sketcher.Constraint("Coincident", 1, 2, 2, 1))
sketch16.addConstraint(Sketcher.Constraint("Coincident", 2, 2, 3, 1))
sketch16.addConstraint(Sketcher.Constraint("Coincident", 3, 2, 0, 1))
sketch16.addConstraint(Sketcher.Constraint("Vertical", 0))
sketch16.addConstraint(Sketcher.Constraint("Horizontal", 1))
sketch16.addConstraint(Sketcher.Constraint("Vertical", 2))
sketch16.addConstraint(Sketcher.Constraint("Horizontal", 3))
sketch16.addConstraint(Sketcher.Constraint("DistanceX", 1, 2, 1, 1, 10.0))
sketch16.addConstraint(Sketcher.Constraint("DistanceY", 0, 2, 0, 1, 3.0))
sketch16.addConstraint(Sketcher.Constraint("DistanceX", -1, 1, 0, 2, 66.43))
sketch16.addConstraint(Sketcher.Constraint("DistanceY", 0, 2, -1, 1, 38.75))
sketch16.setExpression("Constraints[8]", "Params.sketch16_width")
sketch16.setExpression("Constraints[9]", "Params.sketch16_height")
pocket9 = body.newObject("PartDesign::Pocket", "Pocket008")
pocket9.Profile = sketch16
pocket9.setExpression("Length", "Params.pocket9_length")
pocket9.Reversed = True

sketch17 = body.newObject("Sketcher::SketchObject", "Sketch016")
sketch17.AttachmentSupport = (doc.getObject("XY_Plane"), [""])
sketch17.MapMode = "FlatFace"
sketch17.AttachmentOffset = App.Placement(V(0, 0, 23), App.Rotation())
sketch17.addGeometry(Part.LineSegment(V(98.2, -35.8, 0), V(98.2, -38.8, 0)), False)
sketch17.addGeometry(Part.LineSegment(V(98.2, -38.8, 0), V(85.2, -38.8, 0)), False)
sketch17.addGeometry(Part.LineSegment(V(85.2, -38.8, 0), V(85.2, -35.8, 0)), False)
sketch17.addGeometry(Part.LineSegment(V(85.2, -35.8, 0), V(98.2, -35.8, 0)), False)
sketch17.addGeometry(Part.LineSegment(V(66.4, -35.8, 0), V(66.4, -38.8, 0)), False)
sketch17.addGeometry(Part.LineSegment(V(66.4, -38.8, 0), V(56.4, -38.8, 0)), False)
sketch17.addGeometry(Part.LineSegment(V(56.4, -38.8, 0), V(56.4, -35.8, 0)), False)
sketch17.addGeometry(Part.LineSegment(V(56.4, -35.8, 0), V(66.4, -35.8, 0)), False)
sketch17.addConstraint(Sketcher.Constraint("Coincident", 0, 2, 1, 1))
sketch17.addConstraint(Sketcher.Constraint("Coincident", 1, 2, 2, 1))
sketch17.addConstraint(Sketcher.Constraint("Coincident", 2, 2, 3, 1))
sketch17.addConstraint(Sketcher.Constraint("Coincident", 3, 2, 0, 1))
sketch17.addConstraint(Sketcher.Constraint("Coincident", 4, 2, 5, 1))
sketch17.addConstraint(Sketcher.Constraint("Coincident", 5, 2, 6, 1))
sketch17.addConstraint(Sketcher.Constraint("Coincident", 6, 2, 7, 1))
sketch17.addConstraint(Sketcher.Constraint("Coincident", 7, 2, 4, 1))
sketch17.addConstraint(Sketcher.Constraint("Vertical", 0))
sketch17.addConstraint(Sketcher.Constraint("Horizontal", 1))
sketch17.addConstraint(Sketcher.Constraint("Vertical", 2))
sketch17.addConstraint(Sketcher.Constraint("Horizontal", 3))
sketch17.addConstraint(Sketcher.Constraint("Vertical", 4))
sketch17.addConstraint(Sketcher.Constraint("Horizontal", 5))
sketch17.addConstraint(Sketcher.Constraint("Vertical", 6))
sketch17.addConstraint(Sketcher.Constraint("Horizontal", 7))
sketch17.addConstraint(Sketcher.Constraint("Horizontal", 1, 2, 4, 2))
sketch17.addConstraint(Sketcher.Constraint("Horizontal", 3, 2, 6, 2))
sketch17.addConstraint(Sketcher.Constraint("DistanceX", 1, 2, 1, 1, 13.0))
sketch17.addConstraint(Sketcher.Constraint("DistanceX", 5, 2, 5, 1, 10.0))
sketch17.addConstraint(Sketcher.Constraint("DistanceY", 0, 2, 0, 1, 3.0))
sketch17.addConstraint(Sketcher.Constraint("DistanceX", -1, 1, 0, 2, 98.25))
sketch17.addConstraint(Sketcher.Constraint("DistanceY", 0, 2, -1, 1, 38.75))
sketch17.addConstraint(Sketcher.Constraint("DistanceX", -1, 1, 4, 2, 66.43))
sketch17.setExpression("Constraints[18]", "Params.sketch17_width")
sketch17.setExpression("Constraints[19]", "Params.sketch17_width2")
sketch17.setExpression("Constraints[20]", "Params.sketch17_height")
pad8 = body.newObject("PartDesign::Pad", "Pad007")
pad8.Profile = sketch17
pad8.setExpression("Length", "Params.pad8_length")
pad8.Reversed = True
doc.recompute()

fillet2 = body.newObject("PartDesign::Fillet", "Fillet001")
fillet2.Base = (pad8, edges_at(pad8, [
    (112.05, 38.25, 18.25),
    (112.05, -38.75, 18.25),
    (48.55, -38.75, 18.25),
    (48.55, 38.25, 18.25),
]))
fillet2.setExpression("Radius", "Params.fillet2_radius")

sketch18 = body.newObject("Sketcher::SketchObject", "Sketch017")
sketch18.AttachmentSupport = (doc.getObject("XY_Plane"), [""])
sketch18.MapMode = "FlatFace"
sketch18.AttachmentOffset = App.Placement(V(0, 0, 27), App.Rotation())
sketch18.addGeometry(Part.Circle(V(117.5, 39, 0), V(0, 0, 1), 2), False)
sketch18.addGeometry(Part.Circle(V(117.5, -39, 0), V(0, 0, 1), 2), False)
sketch18.addConstraint(Sketcher.Constraint("Equal", 0, 1))
sketch18.addConstraint(Sketcher.Constraint("Symmetric", 0, 3, 1, 3, -1))
sketch18.addConstraint(Sketcher.Constraint("Diameter", 0, 4.0))
sketch18.addConstraint(Sketcher.Constraint("DistanceX", -1, 1, 0, 3, 117.5))
sketch18.addConstraint(Sketcher.Constraint("DistanceY", -1, 1, 0, 3, 38.971143))
sketch18.setExpression("Constraints[2]", "Params.sketch18_diameter")
pocket10 = body.newObject("PartDesign::Pocket", "Pocket009")
pocket10.Profile = sketch18
pocket10.setExpression("Length", "Params.pocket10_length")
pocket10.Reversed = True

sketch19 = body.newObject("Sketcher::SketchObject", "Sketch018")
sketch19.AttachmentSupport = (doc.getObject("XY_Plane"), [""])
sketch19.MapMode = "FlatFace"
sketch19.addGeometry(Part.LineSegment(V(-20, 3, 0), V(-20, -3, 0)), False)
sketch19.addGeometry(Part.LineSegment(V(-20, -3, 0), V(-31, -3, 0)), False)
sketch19.addGeometry(Part.LineSegment(V(-31, -3, 0), V(-31, 3, 0)), False)
sketch19.addGeometry(Part.LineSegment(V(-31, 3, 0), V(-20, 3, 0)), False)
sketch19.addConstraint(Sketcher.Constraint("Coincident", 0, 2, 1, 1))
sketch19.addConstraint(Sketcher.Constraint("Coincident", 1, 2, 2, 1))
sketch19.addConstraint(Sketcher.Constraint("Coincident", 2, 2, 3, 1))
sketch19.addConstraint(Sketcher.Constraint("Coincident", 3, 2, 0, 1))
sketch19.addConstraint(Sketcher.Constraint("Vertical", 0))
sketch19.addConstraint(Sketcher.Constraint("Horizontal", 1))
sketch19.addConstraint(Sketcher.Constraint("Vertical", 2))
sketch19.addConstraint(Sketcher.Constraint("Horizontal", 3))
sketch19.addConstraint(Sketcher.Constraint("DistanceY", 0, 2, 0, 1, 6.0))
sketch19.addConstraint(Sketcher.Constraint("DistanceY", 0, 2, -1, 1, 3.0))
sketch19.addConstraint(Sketcher.Constraint("DistanceX", 1, 2, 1, 1, 10.722568))
sketch19.addConstraint(Sketcher.Constraint("DistanceX", 0, 2, -1, 1, 20.388716))
sketch19.setExpression("Constraints[8]", "Params.sketch19_height")
pocket11 = body.newObject("PartDesign::Pocket", "Pocket010")
pocket11.Profile = sketch19
pocket11.setExpression("Length", "Params.pocket11_length")
pocket11.Reversed = True
doc.recompute()

fillet3 = body.newObject("PartDesign::Fillet", "Fillet002")
fillet3.Base = (pocket11, edges_at(pocket11, [(-25.75, 0, 3), (51.55, 0, 29)]))
fillet3.setExpression("Radius", "Params.fillet3_radius")

doc.recompute()
